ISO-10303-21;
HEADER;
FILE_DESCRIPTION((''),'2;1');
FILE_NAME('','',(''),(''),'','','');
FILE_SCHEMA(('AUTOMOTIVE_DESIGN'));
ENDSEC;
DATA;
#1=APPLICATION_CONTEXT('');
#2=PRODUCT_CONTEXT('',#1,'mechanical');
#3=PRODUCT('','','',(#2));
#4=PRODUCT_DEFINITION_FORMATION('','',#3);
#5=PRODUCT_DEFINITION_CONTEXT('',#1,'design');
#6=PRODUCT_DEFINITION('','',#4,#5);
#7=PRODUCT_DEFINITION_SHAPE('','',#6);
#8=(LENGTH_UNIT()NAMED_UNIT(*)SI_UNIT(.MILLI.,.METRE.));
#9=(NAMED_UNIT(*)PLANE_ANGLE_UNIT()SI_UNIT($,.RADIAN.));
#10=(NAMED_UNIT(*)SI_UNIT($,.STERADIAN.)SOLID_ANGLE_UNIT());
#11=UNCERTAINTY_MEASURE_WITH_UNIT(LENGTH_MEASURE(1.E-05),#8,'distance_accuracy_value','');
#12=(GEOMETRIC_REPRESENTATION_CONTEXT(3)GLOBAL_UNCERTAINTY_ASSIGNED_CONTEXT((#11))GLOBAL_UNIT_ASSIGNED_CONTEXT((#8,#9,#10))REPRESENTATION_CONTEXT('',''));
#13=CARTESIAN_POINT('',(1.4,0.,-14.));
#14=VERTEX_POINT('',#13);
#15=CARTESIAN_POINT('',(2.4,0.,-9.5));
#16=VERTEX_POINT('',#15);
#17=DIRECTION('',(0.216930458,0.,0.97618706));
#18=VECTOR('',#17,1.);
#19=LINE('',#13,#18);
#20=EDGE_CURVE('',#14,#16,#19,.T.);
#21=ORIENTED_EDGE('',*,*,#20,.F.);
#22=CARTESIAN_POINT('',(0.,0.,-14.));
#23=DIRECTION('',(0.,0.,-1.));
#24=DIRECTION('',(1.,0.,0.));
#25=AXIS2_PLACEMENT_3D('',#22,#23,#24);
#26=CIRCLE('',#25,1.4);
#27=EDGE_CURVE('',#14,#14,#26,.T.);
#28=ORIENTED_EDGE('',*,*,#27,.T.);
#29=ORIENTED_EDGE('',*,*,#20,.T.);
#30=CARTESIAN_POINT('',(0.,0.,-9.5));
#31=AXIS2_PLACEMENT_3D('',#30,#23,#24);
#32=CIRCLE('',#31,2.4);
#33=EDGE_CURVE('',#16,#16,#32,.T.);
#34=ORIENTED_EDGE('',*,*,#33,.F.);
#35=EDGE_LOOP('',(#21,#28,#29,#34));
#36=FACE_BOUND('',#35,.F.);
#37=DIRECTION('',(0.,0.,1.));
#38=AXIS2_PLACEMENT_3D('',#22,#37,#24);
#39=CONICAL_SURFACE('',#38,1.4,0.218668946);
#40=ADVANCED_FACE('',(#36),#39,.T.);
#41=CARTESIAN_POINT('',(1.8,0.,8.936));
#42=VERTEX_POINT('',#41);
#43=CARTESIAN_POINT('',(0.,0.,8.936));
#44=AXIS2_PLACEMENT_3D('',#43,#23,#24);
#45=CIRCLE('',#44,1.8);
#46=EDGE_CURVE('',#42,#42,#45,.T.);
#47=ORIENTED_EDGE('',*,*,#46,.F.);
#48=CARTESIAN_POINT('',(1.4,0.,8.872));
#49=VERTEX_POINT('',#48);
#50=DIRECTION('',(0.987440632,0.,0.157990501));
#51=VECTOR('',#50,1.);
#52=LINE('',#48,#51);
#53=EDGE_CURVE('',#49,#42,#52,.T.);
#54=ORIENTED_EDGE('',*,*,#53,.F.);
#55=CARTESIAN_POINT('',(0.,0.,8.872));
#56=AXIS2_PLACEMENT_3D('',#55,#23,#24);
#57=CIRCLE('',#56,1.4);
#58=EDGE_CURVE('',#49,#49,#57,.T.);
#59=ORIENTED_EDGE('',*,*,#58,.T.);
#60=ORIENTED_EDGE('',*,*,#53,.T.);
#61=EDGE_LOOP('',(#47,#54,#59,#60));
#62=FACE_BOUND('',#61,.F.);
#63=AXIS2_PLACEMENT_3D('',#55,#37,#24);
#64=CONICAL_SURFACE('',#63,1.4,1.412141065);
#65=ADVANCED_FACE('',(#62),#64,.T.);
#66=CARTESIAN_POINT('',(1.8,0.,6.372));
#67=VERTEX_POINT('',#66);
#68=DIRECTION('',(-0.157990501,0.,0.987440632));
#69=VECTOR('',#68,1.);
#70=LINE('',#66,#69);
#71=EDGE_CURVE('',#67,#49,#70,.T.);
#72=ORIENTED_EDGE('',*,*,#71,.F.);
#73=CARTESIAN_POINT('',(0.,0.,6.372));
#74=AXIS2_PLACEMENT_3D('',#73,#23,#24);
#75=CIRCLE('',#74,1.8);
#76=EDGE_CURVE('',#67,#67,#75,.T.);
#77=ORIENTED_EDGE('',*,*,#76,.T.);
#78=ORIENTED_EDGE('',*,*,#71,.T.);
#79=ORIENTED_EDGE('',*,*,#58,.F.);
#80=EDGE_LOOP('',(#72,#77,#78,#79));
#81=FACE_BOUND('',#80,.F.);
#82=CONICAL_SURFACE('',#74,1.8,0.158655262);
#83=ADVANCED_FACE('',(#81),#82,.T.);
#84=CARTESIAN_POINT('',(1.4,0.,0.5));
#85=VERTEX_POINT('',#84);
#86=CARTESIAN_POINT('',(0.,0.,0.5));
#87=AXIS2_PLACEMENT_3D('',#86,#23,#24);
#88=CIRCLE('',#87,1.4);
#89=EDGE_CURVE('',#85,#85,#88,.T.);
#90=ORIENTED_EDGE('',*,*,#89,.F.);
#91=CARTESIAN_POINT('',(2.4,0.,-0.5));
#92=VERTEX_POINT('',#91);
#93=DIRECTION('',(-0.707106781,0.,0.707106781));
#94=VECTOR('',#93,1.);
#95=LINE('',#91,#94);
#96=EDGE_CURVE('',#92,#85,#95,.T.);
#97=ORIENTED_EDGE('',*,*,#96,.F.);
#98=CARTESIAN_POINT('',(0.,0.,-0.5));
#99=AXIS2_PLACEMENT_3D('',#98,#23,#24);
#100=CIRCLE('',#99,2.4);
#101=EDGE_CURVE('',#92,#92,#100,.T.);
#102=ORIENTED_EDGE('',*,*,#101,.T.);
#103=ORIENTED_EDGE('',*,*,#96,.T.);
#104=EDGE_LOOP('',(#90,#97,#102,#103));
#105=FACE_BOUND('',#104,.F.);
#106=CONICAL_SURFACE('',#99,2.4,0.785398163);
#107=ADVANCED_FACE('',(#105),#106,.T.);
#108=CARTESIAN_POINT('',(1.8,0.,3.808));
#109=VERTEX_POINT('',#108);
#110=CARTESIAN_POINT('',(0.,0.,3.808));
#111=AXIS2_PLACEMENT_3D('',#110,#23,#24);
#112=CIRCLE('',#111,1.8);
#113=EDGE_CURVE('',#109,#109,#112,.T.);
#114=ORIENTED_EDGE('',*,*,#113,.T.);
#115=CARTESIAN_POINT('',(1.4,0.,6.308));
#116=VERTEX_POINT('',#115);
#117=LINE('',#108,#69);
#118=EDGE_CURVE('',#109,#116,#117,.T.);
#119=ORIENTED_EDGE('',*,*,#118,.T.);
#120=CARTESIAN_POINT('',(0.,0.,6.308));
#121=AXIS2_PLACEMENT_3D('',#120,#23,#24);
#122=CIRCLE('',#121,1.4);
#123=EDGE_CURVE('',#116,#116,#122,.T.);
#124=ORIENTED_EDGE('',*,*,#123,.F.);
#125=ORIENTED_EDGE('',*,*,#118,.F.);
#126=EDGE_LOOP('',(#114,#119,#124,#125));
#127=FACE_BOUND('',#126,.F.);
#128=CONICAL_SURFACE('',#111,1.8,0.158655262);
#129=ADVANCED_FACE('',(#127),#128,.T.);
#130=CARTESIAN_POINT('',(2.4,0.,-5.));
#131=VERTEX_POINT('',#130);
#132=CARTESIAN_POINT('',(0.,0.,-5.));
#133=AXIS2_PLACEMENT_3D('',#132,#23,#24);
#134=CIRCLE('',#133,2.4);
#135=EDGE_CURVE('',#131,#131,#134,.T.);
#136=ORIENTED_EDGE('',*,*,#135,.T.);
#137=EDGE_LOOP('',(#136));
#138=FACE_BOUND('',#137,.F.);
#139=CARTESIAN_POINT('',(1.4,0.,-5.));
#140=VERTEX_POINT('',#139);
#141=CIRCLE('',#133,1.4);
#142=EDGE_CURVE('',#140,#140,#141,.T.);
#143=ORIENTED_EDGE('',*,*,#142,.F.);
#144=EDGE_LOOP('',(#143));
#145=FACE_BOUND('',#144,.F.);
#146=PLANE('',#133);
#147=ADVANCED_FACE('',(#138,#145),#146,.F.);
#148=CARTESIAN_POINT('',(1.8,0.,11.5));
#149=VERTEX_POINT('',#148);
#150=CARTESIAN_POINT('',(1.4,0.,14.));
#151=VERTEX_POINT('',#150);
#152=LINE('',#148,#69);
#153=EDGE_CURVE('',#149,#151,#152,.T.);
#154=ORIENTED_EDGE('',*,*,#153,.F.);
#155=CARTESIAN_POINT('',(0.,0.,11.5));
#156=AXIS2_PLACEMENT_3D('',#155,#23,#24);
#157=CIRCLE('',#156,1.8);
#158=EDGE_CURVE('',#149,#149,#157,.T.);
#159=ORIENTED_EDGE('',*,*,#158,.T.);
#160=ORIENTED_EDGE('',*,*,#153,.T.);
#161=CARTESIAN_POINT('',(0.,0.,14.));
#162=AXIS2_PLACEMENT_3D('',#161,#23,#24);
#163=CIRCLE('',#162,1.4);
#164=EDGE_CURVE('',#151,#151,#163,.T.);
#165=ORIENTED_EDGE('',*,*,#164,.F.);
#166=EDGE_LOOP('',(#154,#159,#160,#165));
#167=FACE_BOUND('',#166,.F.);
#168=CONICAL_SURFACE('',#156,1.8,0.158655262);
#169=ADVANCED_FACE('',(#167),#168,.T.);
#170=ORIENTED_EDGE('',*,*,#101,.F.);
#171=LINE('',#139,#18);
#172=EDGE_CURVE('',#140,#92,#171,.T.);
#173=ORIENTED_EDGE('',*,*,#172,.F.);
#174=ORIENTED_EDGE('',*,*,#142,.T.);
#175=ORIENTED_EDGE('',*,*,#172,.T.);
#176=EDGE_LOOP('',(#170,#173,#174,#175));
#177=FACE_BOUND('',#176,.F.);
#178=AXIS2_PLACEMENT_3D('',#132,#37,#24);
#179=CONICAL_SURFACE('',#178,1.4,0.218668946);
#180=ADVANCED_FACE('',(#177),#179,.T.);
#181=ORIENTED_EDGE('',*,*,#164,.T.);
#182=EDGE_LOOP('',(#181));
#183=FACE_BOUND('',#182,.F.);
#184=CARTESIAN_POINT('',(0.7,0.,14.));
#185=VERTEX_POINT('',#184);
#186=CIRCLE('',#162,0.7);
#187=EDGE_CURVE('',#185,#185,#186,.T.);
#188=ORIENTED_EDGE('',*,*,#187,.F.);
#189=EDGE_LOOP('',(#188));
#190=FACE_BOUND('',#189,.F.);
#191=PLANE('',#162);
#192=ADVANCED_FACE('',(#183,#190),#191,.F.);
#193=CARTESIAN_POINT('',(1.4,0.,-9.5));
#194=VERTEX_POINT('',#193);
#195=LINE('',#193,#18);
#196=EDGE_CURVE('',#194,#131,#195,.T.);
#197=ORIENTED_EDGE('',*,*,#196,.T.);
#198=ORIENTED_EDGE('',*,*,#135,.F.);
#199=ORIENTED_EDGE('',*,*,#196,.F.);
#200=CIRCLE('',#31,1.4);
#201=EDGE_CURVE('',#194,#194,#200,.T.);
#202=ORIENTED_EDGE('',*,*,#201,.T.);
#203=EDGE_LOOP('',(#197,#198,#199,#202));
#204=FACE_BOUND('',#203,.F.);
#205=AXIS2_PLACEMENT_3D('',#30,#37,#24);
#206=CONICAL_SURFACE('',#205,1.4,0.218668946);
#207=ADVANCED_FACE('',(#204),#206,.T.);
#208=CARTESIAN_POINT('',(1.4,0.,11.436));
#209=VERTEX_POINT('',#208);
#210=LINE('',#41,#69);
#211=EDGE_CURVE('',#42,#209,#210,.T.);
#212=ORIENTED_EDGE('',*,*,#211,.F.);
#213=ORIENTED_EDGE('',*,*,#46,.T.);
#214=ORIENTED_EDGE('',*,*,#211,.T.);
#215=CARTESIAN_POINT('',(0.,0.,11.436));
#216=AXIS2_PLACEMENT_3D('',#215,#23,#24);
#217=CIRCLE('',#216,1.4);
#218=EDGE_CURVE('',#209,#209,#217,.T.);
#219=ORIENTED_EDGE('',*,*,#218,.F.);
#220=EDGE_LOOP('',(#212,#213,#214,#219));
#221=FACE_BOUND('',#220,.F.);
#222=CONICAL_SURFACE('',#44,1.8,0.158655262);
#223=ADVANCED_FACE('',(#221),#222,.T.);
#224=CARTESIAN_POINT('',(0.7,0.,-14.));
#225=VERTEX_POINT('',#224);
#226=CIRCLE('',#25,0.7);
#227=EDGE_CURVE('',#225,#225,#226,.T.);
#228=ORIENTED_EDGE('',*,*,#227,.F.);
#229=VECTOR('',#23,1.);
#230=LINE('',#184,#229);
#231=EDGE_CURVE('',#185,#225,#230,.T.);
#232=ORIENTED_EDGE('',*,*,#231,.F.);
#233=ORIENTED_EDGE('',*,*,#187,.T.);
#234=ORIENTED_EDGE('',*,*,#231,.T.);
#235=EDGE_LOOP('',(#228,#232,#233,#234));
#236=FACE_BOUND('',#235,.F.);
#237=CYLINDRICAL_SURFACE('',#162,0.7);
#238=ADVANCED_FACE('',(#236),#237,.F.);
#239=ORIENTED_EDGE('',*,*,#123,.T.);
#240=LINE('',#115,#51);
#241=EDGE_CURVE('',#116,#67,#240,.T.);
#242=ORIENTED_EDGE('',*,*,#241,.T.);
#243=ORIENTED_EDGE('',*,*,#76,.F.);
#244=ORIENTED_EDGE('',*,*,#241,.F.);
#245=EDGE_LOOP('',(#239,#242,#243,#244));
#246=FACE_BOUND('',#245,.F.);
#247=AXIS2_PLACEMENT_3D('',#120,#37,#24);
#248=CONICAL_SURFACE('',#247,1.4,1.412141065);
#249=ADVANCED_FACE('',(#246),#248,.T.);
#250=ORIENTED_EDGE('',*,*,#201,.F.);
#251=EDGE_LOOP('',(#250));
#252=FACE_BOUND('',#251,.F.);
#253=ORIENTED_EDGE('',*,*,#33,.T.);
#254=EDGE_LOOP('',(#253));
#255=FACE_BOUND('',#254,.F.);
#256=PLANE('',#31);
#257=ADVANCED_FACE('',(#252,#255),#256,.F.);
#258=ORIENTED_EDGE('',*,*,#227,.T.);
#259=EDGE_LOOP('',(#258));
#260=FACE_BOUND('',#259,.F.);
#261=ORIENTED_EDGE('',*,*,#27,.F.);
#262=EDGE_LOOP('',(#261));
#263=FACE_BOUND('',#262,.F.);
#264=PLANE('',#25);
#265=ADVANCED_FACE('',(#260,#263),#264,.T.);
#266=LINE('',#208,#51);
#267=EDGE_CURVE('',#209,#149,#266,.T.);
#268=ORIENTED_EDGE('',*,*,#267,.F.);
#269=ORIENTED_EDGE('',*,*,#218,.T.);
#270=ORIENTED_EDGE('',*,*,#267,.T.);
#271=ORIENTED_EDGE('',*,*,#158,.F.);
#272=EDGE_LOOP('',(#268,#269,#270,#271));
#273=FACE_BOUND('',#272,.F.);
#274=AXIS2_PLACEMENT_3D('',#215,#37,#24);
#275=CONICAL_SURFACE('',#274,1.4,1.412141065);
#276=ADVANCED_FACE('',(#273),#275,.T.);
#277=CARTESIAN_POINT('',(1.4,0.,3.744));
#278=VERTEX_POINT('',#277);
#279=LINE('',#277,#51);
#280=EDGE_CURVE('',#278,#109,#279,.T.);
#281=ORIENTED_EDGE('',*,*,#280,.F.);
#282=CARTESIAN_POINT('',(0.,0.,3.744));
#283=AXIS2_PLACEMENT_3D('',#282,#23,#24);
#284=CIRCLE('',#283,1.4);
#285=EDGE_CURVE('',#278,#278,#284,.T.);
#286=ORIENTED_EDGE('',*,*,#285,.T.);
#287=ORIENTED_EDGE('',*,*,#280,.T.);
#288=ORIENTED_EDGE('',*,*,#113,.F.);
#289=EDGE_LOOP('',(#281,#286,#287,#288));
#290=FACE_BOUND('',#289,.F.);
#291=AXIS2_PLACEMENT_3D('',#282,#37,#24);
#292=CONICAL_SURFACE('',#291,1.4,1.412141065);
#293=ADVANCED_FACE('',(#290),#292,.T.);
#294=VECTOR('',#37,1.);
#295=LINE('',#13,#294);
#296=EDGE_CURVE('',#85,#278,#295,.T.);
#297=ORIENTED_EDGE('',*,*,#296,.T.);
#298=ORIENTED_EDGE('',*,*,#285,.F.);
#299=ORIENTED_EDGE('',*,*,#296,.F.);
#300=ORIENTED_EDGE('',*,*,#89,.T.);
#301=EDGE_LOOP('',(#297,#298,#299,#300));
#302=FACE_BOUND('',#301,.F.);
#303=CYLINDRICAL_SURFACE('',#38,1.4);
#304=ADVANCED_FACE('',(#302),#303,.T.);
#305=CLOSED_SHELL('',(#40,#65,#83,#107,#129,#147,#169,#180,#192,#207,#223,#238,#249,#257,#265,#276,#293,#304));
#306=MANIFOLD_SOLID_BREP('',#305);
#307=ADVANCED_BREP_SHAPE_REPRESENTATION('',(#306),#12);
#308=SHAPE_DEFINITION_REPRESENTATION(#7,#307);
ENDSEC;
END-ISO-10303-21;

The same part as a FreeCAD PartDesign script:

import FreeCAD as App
import Part
import Sketcher
Q = App.Units.Quantity


def add_polygon(sketch, points):
    """Adds a closed chain of lines whose ends are joined by coincident constraints."""
    first, n = sketch.GeometryCount, len(points)
    for a, b in zip(points, points[1:] + points[:1]):
        sketch.addGeometry(Part.LineSegment(App.Vector(*a, 0), App.Vector(*b, 0)), False)
    for i in range(n):
        sketch.addConstraint(Sketcher.Constraint("Coincident", first + i, 2, first + (i + 1) % n, 1))

doc = App.newDocument("Part")
params = doc.addObject("Spreadsheet::Sheet", "Params")
for row, (alias, value) in enumerate([
    ("sketch1_width", "1 mm"),
    ("sketch1_height", "28 mm"),
    ("sketch1_width2", "0.7 mm"),
    ("revolution_angle", "360 deg"),
], start=1):
    params.set(f"A{row}", alias)
    params.set(f"B{row}", "=" + value)
    params.setAlias(f"B{row}", alias)

body = doc.addObject("PartDesign::Body", "Body")

# Sketch on XZ plane
sketch1 = doc.addObject("Sketcher::SketchObject", "Sketch")
body.addObject(sketch1)
sketch1.AttachmentSupport = (doc.XZ_Plane, [""])
sketch1.MapMode = "FlatFace"
add_polygon(sketch1, [(1.4, 14), (0.7, 14), (0.7, -14), (1.4, -14), (2.4, -9.5), (1.4, -9.5), (2.4, -5), (1.4, -5), (2.4, -0.5), (1.4, 0.5), (1.4, 3.74), (1.8, 3.81), (1.4, 6.31), (1.8, 6.37), (1.4, 8.87), (1.8, 8.94), (1.4, 11.44), (1.8, 11.5)])  # lines 0-17
sketch1.addConstraint([
    Sketcher.Constraint("Horizontal", 0),
    Sketcher.Constraint("Vertical", 1),
    Sketcher.Constraint("Horizontal", 2),
    Sketcher.Constraint("Horizontal", 4),
    Sketcher.Constraint("Horizontal", 6),
    Sketcher.Constraint("Vertical", 9),
    Sketcher.Constraint("Symmetric", 2, 2, 17, 2, -1),
    Sketcher.Constraint("Parallel", 3, 5),
    Sketcher.Constraint("Parallel", 5, 7),
    Sketcher.Constraint("Perpendicular", 10, 11),
    Sketcher.Constraint("Perpendicular", 11, 12),
    Sketcher.Constraint("Perpendicular", 12, 13),
    Sketcher.Constraint("Perpendicular", 13, 14),
    Sketcher.Constraint("Perpendicular", 14, 15),
    Sketcher.Constraint("Perpendicular", 15, 16),
    Sketcher.Constraint("Perpendicular", 16, 17),
    Sketcher.Constraint("Vertical", 2, 2, 4, 2),
    Sketcher.Constraint("Vertical", 3, 2, 5, 2),
    Sketcher.Constraint("Vertical", 4, 2, 6, 2),
    Sketcher.Constraint("Vertical", 5, 2, 7, 2),
    Sketcher.Constraint("Vertical", 6, 2, 8, 2),
    Sketcher.Constraint("Vertical", 9, 2, 11, 2),
    Sketcher.Constraint("Vertical", 10, 2, 12, 2),
    Sketcher.Constraint("Vertical", 11, 2, 13, 2),
    Sketcher.Constraint("Vertical", 12, 2, 14, 2),
    Sketcher.Constraint("Vertical", 13, 2, 15, 2),
    Sketcher.Constraint("Vertical", 14, 2, 16, 2),
    Sketcher.Constraint("DistanceX", 4, 2, 4, 1, Q("1 mm")),
    Sketcher.Constraint("DistanceY", 1, 2, 1, 1, Q("28 mm")),
    Sketcher.Constraint("Angle", 8, Q("135 deg")),
    Sketcher.Constraint("DistanceX", 0, 2, 0, 1, Q("0.7 mm")),
    Sketcher.Constraint("DistanceY", 5, 2, -1, 1, Q("5 mm")),
    Sketcher.Constraint("DistanceX", -1, 1, 0, 2, Q("0.7 mm")),
    Sketcher.Constraint("DistanceX", -1, 1, 10, 2, Q("1.8 mm")),
    Sketcher.Constraint("DistanceY", -1, 1, 16, 2, Q("11.5 mm")),
])
sketch1.setExpression("Constraints[45]", "Params.sketch1_width")
sketch1.setExpression("Constraints[46]", "Params.sketch1_height")
sketch1.setExpression("Constraints[48]", "Params.sketch1_width2")
revolution = doc.addObject("PartDesign::Revolution", "Revolution")
body.addObject(revolution)
revolution.Profile = sketch1
revolution.ReferenceAxis = (sketch1, ["V_Axis"])
revolution.setExpression("Angle", "Params.revolution_angle")

doc.recompute()
